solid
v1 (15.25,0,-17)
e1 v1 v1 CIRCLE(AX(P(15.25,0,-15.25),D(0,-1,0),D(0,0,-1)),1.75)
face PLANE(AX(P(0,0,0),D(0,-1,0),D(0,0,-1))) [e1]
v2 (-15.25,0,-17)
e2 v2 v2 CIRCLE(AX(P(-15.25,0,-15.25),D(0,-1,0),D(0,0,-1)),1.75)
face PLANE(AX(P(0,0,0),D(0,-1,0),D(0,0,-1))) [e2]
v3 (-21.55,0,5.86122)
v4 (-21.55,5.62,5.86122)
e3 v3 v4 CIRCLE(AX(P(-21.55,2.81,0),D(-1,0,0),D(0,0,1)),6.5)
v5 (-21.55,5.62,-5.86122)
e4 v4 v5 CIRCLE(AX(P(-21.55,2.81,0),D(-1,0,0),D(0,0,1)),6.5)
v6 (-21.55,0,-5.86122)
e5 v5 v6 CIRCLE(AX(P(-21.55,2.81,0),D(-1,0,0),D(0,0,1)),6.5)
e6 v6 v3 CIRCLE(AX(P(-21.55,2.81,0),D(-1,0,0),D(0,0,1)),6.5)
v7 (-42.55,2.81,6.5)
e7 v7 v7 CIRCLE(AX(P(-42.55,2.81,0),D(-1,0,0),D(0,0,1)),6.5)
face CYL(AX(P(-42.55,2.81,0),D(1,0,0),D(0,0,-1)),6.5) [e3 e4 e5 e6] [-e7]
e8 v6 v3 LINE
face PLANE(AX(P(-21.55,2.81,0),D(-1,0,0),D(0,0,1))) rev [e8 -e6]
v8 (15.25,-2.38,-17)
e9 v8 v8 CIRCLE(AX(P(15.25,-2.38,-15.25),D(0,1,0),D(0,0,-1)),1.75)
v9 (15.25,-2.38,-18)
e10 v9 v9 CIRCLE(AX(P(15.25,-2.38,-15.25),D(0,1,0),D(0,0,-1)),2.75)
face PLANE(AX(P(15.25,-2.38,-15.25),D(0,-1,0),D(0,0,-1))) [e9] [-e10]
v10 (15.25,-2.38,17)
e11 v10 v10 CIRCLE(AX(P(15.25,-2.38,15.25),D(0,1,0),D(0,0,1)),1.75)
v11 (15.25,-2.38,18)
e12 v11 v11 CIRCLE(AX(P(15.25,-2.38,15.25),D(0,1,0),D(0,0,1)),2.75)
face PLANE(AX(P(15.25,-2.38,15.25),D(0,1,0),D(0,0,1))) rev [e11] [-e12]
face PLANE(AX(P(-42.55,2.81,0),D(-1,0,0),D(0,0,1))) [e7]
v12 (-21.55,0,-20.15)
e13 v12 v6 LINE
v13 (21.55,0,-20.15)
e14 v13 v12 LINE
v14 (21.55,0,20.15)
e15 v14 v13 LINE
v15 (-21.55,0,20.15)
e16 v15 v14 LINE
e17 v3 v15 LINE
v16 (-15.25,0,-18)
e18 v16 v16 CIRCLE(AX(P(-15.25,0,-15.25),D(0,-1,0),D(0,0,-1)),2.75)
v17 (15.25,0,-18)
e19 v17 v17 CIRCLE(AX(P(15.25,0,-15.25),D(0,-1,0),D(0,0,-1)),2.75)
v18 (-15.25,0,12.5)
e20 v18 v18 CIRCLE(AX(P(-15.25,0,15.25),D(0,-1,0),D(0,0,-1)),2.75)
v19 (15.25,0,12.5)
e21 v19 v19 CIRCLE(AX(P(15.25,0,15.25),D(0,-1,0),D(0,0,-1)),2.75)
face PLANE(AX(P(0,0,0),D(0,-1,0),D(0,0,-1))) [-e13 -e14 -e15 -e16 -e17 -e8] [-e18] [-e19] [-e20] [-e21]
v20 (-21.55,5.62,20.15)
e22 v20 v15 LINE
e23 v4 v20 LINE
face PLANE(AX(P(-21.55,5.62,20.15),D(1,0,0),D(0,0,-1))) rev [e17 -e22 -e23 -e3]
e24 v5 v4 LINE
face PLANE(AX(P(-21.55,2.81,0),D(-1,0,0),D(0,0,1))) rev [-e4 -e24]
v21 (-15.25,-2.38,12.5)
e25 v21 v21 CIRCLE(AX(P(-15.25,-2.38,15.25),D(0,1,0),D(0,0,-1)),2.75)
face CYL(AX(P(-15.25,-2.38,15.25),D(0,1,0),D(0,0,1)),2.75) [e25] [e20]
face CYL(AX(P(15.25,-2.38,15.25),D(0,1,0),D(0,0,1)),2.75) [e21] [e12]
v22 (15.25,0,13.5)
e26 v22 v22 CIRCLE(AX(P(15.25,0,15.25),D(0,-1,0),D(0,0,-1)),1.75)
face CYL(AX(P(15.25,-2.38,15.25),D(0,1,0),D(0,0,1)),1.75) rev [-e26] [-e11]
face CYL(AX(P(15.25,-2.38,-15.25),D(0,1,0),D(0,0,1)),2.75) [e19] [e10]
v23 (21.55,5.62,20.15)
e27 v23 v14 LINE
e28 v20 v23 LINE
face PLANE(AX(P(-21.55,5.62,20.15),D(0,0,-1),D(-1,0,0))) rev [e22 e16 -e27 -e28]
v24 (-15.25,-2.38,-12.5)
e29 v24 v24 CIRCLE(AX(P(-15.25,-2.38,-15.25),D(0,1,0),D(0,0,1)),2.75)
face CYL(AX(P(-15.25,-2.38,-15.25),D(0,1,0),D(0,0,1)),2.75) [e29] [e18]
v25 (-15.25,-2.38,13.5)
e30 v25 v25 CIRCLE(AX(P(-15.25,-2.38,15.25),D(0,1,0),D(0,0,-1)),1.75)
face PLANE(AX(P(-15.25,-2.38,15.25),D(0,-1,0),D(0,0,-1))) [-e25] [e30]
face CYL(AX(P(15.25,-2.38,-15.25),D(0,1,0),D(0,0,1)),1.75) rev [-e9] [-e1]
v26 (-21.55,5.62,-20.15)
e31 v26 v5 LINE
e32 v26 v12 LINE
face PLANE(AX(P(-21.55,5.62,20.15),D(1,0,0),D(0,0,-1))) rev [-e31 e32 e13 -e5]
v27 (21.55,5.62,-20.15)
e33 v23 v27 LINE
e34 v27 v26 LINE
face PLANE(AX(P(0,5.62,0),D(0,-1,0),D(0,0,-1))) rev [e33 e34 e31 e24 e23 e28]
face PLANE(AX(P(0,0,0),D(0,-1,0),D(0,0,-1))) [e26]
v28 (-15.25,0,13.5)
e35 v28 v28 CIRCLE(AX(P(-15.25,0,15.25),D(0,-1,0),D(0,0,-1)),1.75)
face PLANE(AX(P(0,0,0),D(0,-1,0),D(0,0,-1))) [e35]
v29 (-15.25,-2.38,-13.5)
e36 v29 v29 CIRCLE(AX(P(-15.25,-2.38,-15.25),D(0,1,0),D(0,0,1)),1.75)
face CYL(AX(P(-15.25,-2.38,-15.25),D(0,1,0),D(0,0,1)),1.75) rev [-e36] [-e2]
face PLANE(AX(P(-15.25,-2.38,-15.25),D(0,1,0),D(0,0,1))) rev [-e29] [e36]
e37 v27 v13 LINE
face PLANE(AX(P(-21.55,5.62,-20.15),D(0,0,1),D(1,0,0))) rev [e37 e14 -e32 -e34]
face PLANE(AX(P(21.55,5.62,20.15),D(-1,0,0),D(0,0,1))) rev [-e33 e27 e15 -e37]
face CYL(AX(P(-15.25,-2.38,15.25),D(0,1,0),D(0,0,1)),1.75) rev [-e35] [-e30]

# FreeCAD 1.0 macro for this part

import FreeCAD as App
import Part
import Sketcher


def add_polygon(sketch, points):
    """Adds a closed chain of lines whose ends are joined by coincident constraints."""
    first, n = sketch.GeometryCount, len(points)
    for a, b in zip(points, points[1:] + points[:1]):
        sketch.addGeometry(Part.LineSegment(App.Vector(*a, 0), App.Vector(*b, 0)), False)
    for i in range(n):
        sketch.addConstraint(Sketcher.Constraint("Coincident", first + i, 2, first + (i + 1) % n, 1))

doc = App.newDocument("Part")
body = doc.addObject("PartDesign::Body", "Body")

sketch1 = body.newObject("Sketcher::SketchObject", "Sketch")
sketch1.AttachmentSupport = (doc.getObject("XZ_Plane"), [""])
sketch1.MapMode = "FlatFace"
add_polygon(sketch1, [(-21.55, -20.15), (-21.55, 20.15), (21.55, 20.15), (21.55, -20.15)])
sketch1.addConstraint(Sketcher.Constraint("Vertical", 0))
sketch1.addConstraint(Sketcher.Constraint("Horizontal", 1))
sketch1.addConstraint(Sketcher.Constraint("Vertical", 2))
sketch1.addConstraint(Sketcher.Constraint("Horizontal", 3))
sketch1.addConstraint(Sketcher.Constraint("Symmetric", 0, 2, 2, 2, -1, 1))
sketch1.addConstraint(Sketcher.Constraint("DistanceX", 1, 1, 1, 2, 43.1))
sketch1.addConstraint(Sketcher.Constraint("DistanceY", 0, 1, 0, 2, 40.3))
pad1 = body.newObject("PartDesign::Pad", "Pad")
pad1.Profile = sketch1
pad1.Length = 5.62
pad1.Reversed = True

sketch2 = body.newObject("Sketcher::SketchObject", "Sketch001")
sketch2.AttachmentSupport = (doc.getObject("XZ_Plane"), [""])
sketch2.MapMode = "FlatFace"
sketch2.AttachmentOffset = App.Placement(App.Vector(0, 0, -5.62), App.Rotation())
sketch2.addGeometry(Part.Circle(App.Vector(-15.25, -15.25, 0), App.Vector(0, 0, 1), 2.75), False)
sketch2.addGeometry(Part.Circle(App.Vector(-15.25, -15.25, 0), App.Vector(0, 0, 1), 1.75), False)
sketch2.addGeometry(Part.Circle(App.Vector(15.25, -15.25, 0), App.Vector(0, 0, 1), 2.75), False)
sketch2.addGeometry(Part.Circle(App.Vector(15.25, -15.25, 0), App.Vector(0, 0, 1), 1.75), False)
sketch2.addGeometry(Part.Circle(App.Vector(15.25, 15.25, 0), App.Vector(0, 0, 1), 2.75), False)
sketch2.addGeometry(Part.Circle(App.Vector(15.25, 15.25, 0), App.Vector(0, 0, 1), 1.75), False)
sketch2.addGeometry(Part.Circle(App.Vector(-15.25, 15.25, 0), App.Vector(0, 0, 1), 2.75), False)
sketch2.addGeometry(Part.Circle(App.Vector(-15.25, 15.25, 0), App.Vector(0, 0, 1), 1.75), False)
sketch2.addConstraint(Sketcher.Constraint("Coincident", 1, 3, 0, 3))
sketch2.addConstraint(Sketcher.Constraint("Coincident", 3, 3, 2, 3))
sketch2.addConstraint(Sketcher.Constraint("Coincident", 5, 3, 4, 3))
sketch2.addConstraint(Sketcher.Constraint("Coincident", 7, 3, 6, 3))
sketch2.addConstraint(Sketcher.Constraint("Equal", 0, 2))
sketch2.addConstraint(Sketcher.Constraint("Equal", 1, 3))
sketch2.addConstraint(Sketcher.Constraint("Equal", 2, 4))
sketch2.addConstraint(Sketcher.Constraint("Equal", 3, 5))
sketch2.addConstraint(Sketcher.Constraint("Equal", 4, 6))
sketch2.addConstraint(Sketcher.Constraint("Equal", 5, 7))
sketch2.addConstraint(Sketcher.Constraint("Symmetric", 0, 3, 4, 3, -1, 1))
sketch2.addConstraint(Sketcher.Constraint("Symmetric", 2, 3, 6, 3, -1, 1))
sketch2.addConstraint(Sketcher.Constraint("Symmetric", 0, 3, 2, 3, -2))
sketch2.addConstraint(Sketcher.Constraint("Diameter", 0, 5.5))
sketch2.addConstraint(Sketcher.Constraint("Diameter", 1, 3.5))
sketch2.addConstraint(Sketcher.Constraint("DistanceX", 0, 3, 2, 3, 30.5))
sketch2.addConstraint(Sketcher.Constraint("DistanceY", 2, 3, 4, 3, 30.5))
pad2 = body.newObject("PartDesign::Pad", "Pad001")
pad2.Profile = sketch2
pad2.Length = 8

sketch3 = body.newObject("Sketcher::SketchObject", "Sketch002")
sketch3.AttachmentSupport = (doc.getObject("YZ_Plane"), [""])
sketch3.MapMode = "FlatFace"
sketch3.AttachmentOffset = App.Placement(App.Vector(0, 0, -21.55), App.Rotation())
sketch3.addGeometry(Part.Circle(App.Vector(2.81, 0, 0), App.Vector(0, 0, 1), 6.5), False)
sketch3.addConstraint(Sketcher.Constraint("PointOnObject", 0, 3, -1))
sketch3.addConstraint(Sketcher.Constraint("Diameter", 0, 13.0))
sketch3.addConstraint(Sketcher.Constraint("DistanceX", -1, 1, 0, 3, 2.81))
pad3 = body.newObject("PartDesign::Pad", "Pad002")
pad3.Profile = sketch3
pad3.Length = 21
pad3.Reversed = True

doc.recompute()
